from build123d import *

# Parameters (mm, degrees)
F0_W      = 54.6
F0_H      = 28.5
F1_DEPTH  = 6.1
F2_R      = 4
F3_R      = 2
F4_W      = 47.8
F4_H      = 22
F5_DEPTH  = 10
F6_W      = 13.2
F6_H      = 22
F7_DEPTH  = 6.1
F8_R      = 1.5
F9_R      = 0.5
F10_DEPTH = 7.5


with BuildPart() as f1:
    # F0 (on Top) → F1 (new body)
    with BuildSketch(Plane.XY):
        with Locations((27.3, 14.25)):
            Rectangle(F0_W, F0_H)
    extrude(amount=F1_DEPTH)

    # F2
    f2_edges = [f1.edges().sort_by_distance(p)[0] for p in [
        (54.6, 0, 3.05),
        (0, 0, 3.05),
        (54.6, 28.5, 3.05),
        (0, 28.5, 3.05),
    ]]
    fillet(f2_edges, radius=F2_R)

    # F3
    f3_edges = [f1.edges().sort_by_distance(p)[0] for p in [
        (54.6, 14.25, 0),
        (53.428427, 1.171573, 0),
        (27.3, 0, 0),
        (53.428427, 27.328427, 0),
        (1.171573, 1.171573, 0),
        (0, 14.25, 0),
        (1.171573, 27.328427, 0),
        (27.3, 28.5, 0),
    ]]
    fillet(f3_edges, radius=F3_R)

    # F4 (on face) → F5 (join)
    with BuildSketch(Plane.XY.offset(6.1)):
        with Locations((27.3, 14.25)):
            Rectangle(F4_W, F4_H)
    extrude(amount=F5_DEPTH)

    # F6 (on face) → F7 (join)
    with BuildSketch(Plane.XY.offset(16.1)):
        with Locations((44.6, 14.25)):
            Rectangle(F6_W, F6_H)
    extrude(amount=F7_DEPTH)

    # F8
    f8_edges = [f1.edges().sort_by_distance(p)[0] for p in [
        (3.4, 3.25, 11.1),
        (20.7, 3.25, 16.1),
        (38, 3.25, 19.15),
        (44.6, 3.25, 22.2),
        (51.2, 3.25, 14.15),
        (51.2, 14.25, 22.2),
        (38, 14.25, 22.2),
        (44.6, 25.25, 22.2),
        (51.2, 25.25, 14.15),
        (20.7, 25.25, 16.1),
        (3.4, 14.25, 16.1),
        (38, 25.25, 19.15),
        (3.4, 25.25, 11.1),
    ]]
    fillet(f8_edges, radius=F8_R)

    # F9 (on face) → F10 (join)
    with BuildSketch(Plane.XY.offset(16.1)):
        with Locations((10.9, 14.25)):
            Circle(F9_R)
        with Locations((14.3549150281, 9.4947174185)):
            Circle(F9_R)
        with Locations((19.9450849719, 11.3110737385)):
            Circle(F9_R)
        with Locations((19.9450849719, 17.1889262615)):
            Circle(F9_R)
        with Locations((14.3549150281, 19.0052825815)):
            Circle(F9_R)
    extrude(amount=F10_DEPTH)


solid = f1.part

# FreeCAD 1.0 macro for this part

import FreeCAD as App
import Part
import Sketcher
from FreeCAD import Vector


def edges_at(feature, points):
    """Names of the edges that pass closest to the given points."""
    edges = feature.Shape.Edges
    near = lambda p: min(range(len(edges)), key=lambda i: edges[i].distToShape(Part.Vertex(*p))[0])
    return sorted({f"Edge{near(p) + 1}" for p in points})


def add_polygon(sketch, points):
    """Adds a closed chain of lines whose ends are joined by coincident constraints."""
    first, n = sketch.GeometryCount, len(points)
    for a, b in zip(points, points[1:] + points[:1]):
        sketch.addGeometry(Part.LineSegment(App.Vector(*a, 0), App.Vector(*b, 0)), False)
    for i in range(n):
        sketch.addConstraint(Sketcher.Constraint("Coincident", first + i, 2, first + (i + 1) % n, 1))

doc = App.newDocument("Part")
body = doc.addObject("PartDesign::Body", "Body")

# Sketch on XY plane
sketch1 = body.newObject("Sketcher::SketchObject", "Sketch")
sketch1.AttachmentSupport = (doc.getObject("XY_Plane"), [""])
sketch1.MapMode = "FlatFace"
add_polygon(sketch1, [(0, 28), (0, 0), (55, 0), (55, 28)])  # lines 0-3
sketch1.addConstraint(Sketcher.Constraint("Vertical", 0))
sketch1.addConstraint(Sketcher.Constraint("Horizontal", 1))
sketch1.addConstraint(Sketcher.Constraint("Vertical", 2))
sketch1.addConstraint(Sketcher.Constraint("Horizontal", 3))
sketch1.addConstraint(Sketcher.Constraint("Coincident", 0, 2, -1, 1))
sketch1.addConstraint(Sketcher.Constraint("DistanceX", 1, 1, 1, 2, 54.6))
sketch1.addConstraint(Sketcher.Constraint("DistanceY", 0, 2, 0, 1, 28.5))
pad1 = body.newObject("PartDesign::Pad", "Pad")
pad1.Profile = sketch1
pad1.Length = 6.1
doc.recompute()

fillet = body.newObject("PartDesign::Fillet", "Fillet")
fillet.Base = (pad1, edges_at(pad1, [
    (54.6, 0, 3.05),
    (0, 0, 3.05),
    (54.6, 28.5, 3.05),
    (0, 28.5, 3.05),
]))
fillet.Radius = 4
doc.recompute()

fillet2 = body.newObject("PartDesign::Fillet", "Fillet001")
fillet2.Base = (fillet, edges_at(fillet, [
    (54.6, 14.25, 0),
    (53.428, 1.172, 0),
    (27.3, 0, 0),
    (53.428, 27.328, 0),
    (1.172, 1.172, 0),
    (0, 14.25, 0),
    (1.172, 27.328, 0),
    (27.3, 28.5, 0),
]))
fillet2.Radius = 2

# Sketch on XY plane
sketch2 = body.newObject("Sketcher::SketchObject", "Sketch001")
sketch2.AttachmentSupport = (doc.getObject("XY_Plane"), [""])
sketch2.MapMode = "FlatFace"
sketch2.AttachmentOffset = App.Placement(Vector(0, 0, 6.1), App.Rotation())
add_polygon(sketch2, [(3, 25), (3, 3), (51, 3), (51, 25)])  # lines 0-3
sketch2.addConstraint(Sketcher.Constraint("Vertical", 0))
sketch2.addConstraint(Sketcher.Constraint("Horizontal", 1))
sketch2.addConstraint(Sketcher.Constraint("Vertical", 2))
sketch2.addConstraint(Sketcher.Constraint("Horizontal", 3))
sketch2.addConstraint(Sketcher.Constraint("DistanceY", 0, 2, 0, 1, 22.0))
sketch2.addConstraint(Sketcher.Constraint("DistanceX", 1, 1, 1, 2, 47.8))
sketch2.addConstraint(Sketcher.Constraint("DistanceX", -1, 1, 0, 2, 3.4))
sketch2.addConstraint(Sketcher.Constraint("DistanceY", -1, 1, 0, 2, 3.25))
pad2 = body.newObject("PartDesign::Pad", "Pad001")
pad2.Profile = sketch2
pad2.Length = 10

# Sketch on XY plane
sketch3 = body.newObject("Sketcher::SketchObject", "Sketch002")
sketch3.AttachmentSupport = (doc.getObject("XY_Plane"), [""])
sketch3.MapMode = "FlatFace"
sketch3.AttachmentOffset = App.Placement(Vector(0, 0, 16.1), App.Rotation())
add_polygon(sketch3, [(38, 25), (38, 3), (51, 3), (51, 25)])  # lines 0-3
sketch3.addConstraint(Sketcher.Constraint("Vertical", 0))
sketch3.addConstraint(Sketcher.Constraint("Horizontal", 1))
sketch3.addConstraint(Sketcher.Constraint("Vertical", 2))
sketch3.addConstraint(Sketcher.Constraint("Horizontal", 3))
sketch3.addConstraint(Sketcher.Constraint("DistanceY", 0, 2, 0, 1, 22.0))
sketch3.addConstraint(Sketcher.Constraint("DistanceX", 1, 1, 1, 2, 13.2))
sketch3.addConstraint(Sketcher.Constraint("DistanceX", -1, 1, 0, 2, 38.0))
sketch3.addConstraint(Sketcher.Constraint("DistanceY", -1, 1, 0, 2, 3.25))
pad3 = body.newObject("PartDesign::Pad", "Pad002")
pad3.Profile = sketch3
pad3.Length = 6.1
doc.recompute()

fillet3 = body.newObject("PartDesign::Fillet", "Fillet002")
fillet3.Base = (pad3, edges_at(pad3, [
    (3.4, 3.25, 11.1),
    (20.7, 3.25, 16.1),
    (38, 3.25, 19.15),
    (44.6, 3.25, 22.2),
    (51.2, 3.25, 14.15),
    (51.2, 14.25, 22.2),
    (38, 14.25, 22.2),
    (44.6, 25.25, 22.2),
    (51.2, 25.25, 14.15),
    (20.7, 25.25, 16.1),
    (3.4, 14.25, 16.1),
    (38, 25.25, 19.15),
    (3.4, 25.25, 11.1),
]))
fillet3.Radius = 1.5

# Sketch on XY plane
sketch4 = body.newObject("Sketcher::SketchObject", "Sketch003")
sketch4.AttachmentSupport = (doc.getObject("XY_Plane"), [""])
sketch4.MapMode = "FlatFace"
sketch4.AttachmentOffset = App.Placement(Vector(0, 0, 16.1), App.Rotation())
sketch4.addGeometry(Part.Circle(Vector(10.9, 14.2, 0), Vector(0, 0, 1), 0.5), False)
sketch4.addGeometry(Part.Circle(Vector(14.4, 9.5, 0), Vector(0, 0, 1), 0.5), False)
sketch4.addGeometry(Part.Circle(Vector(19.9, 11.3, 0), Vector(0, 0, 1), 0.5), False)
sketch4.addGeometry(Part.Circle(Vector(19.9, 17.2, 0), Vector(0, 0, 1), 0.5), False)
sketch4.addGeometry(Part.Circle(Vector(14.4, 19, 0), Vector(0, 0, 1), 0.5), False)
sketch4.addConstraint(Sketcher.Constraint("Equal", 0, 1))
sketch4.addConstraint(Sketcher.Constraint("Equal", 1, 2))
sketch4.addConstraint(Sketcher.Constraint("Equal", 2, 3))
sketch4.addConstraint(Sketcher.Constraint("Equal", 3, 4))
sketch4.addConstraint(Sketcher.Constraint("Vertical", 2, 3, 3, 3))
sketch4.addConstraint(Sketcher.Constraint("Vertical", 1, 3, 4, 3))
sketch4.addConstraint(Sketcher.Constraint("Diameter", 0, 1.0))
sketch4.addConstraint(Sketcher.Constraint("DistanceX", -1, 1, 0, 3, 10.9))
sketch4.addConstraint(Sketcher.Constraint("DistanceY", -1, 1, 0, 3, 14.25))
sketch4.addConstraint(Sketcher.Constraint("DistanceX", 1, 3, 2, 3, 5.59017))
sketch4.addConstraint(Sketcher.Constraint("DistanceY", 1, 3, 3, 3, 7.694209))
sketch4.addConstraint(Sketcher.Constraint("DistanceY", 2, 3, 4, 3, 7.694209))
sketch4.addConstraint(Sketcher.Constraint("DistanceX", -1, 1, 1, 3, 14.354915))
sketch4.addConstraint(Sketcher.Constraint("DistanceY", -1, 1, 1, 3, 9.494717))
sketch4.addConstraint(Sketcher.Constraint("DistanceY", -1, 1, 2, 3, 11.311074))
pad4 = body.newObject("PartDesign::Pad", "Pad003")
pad4.Profile = sketch4
pad4.Length = 7.5

doc.recompute()
